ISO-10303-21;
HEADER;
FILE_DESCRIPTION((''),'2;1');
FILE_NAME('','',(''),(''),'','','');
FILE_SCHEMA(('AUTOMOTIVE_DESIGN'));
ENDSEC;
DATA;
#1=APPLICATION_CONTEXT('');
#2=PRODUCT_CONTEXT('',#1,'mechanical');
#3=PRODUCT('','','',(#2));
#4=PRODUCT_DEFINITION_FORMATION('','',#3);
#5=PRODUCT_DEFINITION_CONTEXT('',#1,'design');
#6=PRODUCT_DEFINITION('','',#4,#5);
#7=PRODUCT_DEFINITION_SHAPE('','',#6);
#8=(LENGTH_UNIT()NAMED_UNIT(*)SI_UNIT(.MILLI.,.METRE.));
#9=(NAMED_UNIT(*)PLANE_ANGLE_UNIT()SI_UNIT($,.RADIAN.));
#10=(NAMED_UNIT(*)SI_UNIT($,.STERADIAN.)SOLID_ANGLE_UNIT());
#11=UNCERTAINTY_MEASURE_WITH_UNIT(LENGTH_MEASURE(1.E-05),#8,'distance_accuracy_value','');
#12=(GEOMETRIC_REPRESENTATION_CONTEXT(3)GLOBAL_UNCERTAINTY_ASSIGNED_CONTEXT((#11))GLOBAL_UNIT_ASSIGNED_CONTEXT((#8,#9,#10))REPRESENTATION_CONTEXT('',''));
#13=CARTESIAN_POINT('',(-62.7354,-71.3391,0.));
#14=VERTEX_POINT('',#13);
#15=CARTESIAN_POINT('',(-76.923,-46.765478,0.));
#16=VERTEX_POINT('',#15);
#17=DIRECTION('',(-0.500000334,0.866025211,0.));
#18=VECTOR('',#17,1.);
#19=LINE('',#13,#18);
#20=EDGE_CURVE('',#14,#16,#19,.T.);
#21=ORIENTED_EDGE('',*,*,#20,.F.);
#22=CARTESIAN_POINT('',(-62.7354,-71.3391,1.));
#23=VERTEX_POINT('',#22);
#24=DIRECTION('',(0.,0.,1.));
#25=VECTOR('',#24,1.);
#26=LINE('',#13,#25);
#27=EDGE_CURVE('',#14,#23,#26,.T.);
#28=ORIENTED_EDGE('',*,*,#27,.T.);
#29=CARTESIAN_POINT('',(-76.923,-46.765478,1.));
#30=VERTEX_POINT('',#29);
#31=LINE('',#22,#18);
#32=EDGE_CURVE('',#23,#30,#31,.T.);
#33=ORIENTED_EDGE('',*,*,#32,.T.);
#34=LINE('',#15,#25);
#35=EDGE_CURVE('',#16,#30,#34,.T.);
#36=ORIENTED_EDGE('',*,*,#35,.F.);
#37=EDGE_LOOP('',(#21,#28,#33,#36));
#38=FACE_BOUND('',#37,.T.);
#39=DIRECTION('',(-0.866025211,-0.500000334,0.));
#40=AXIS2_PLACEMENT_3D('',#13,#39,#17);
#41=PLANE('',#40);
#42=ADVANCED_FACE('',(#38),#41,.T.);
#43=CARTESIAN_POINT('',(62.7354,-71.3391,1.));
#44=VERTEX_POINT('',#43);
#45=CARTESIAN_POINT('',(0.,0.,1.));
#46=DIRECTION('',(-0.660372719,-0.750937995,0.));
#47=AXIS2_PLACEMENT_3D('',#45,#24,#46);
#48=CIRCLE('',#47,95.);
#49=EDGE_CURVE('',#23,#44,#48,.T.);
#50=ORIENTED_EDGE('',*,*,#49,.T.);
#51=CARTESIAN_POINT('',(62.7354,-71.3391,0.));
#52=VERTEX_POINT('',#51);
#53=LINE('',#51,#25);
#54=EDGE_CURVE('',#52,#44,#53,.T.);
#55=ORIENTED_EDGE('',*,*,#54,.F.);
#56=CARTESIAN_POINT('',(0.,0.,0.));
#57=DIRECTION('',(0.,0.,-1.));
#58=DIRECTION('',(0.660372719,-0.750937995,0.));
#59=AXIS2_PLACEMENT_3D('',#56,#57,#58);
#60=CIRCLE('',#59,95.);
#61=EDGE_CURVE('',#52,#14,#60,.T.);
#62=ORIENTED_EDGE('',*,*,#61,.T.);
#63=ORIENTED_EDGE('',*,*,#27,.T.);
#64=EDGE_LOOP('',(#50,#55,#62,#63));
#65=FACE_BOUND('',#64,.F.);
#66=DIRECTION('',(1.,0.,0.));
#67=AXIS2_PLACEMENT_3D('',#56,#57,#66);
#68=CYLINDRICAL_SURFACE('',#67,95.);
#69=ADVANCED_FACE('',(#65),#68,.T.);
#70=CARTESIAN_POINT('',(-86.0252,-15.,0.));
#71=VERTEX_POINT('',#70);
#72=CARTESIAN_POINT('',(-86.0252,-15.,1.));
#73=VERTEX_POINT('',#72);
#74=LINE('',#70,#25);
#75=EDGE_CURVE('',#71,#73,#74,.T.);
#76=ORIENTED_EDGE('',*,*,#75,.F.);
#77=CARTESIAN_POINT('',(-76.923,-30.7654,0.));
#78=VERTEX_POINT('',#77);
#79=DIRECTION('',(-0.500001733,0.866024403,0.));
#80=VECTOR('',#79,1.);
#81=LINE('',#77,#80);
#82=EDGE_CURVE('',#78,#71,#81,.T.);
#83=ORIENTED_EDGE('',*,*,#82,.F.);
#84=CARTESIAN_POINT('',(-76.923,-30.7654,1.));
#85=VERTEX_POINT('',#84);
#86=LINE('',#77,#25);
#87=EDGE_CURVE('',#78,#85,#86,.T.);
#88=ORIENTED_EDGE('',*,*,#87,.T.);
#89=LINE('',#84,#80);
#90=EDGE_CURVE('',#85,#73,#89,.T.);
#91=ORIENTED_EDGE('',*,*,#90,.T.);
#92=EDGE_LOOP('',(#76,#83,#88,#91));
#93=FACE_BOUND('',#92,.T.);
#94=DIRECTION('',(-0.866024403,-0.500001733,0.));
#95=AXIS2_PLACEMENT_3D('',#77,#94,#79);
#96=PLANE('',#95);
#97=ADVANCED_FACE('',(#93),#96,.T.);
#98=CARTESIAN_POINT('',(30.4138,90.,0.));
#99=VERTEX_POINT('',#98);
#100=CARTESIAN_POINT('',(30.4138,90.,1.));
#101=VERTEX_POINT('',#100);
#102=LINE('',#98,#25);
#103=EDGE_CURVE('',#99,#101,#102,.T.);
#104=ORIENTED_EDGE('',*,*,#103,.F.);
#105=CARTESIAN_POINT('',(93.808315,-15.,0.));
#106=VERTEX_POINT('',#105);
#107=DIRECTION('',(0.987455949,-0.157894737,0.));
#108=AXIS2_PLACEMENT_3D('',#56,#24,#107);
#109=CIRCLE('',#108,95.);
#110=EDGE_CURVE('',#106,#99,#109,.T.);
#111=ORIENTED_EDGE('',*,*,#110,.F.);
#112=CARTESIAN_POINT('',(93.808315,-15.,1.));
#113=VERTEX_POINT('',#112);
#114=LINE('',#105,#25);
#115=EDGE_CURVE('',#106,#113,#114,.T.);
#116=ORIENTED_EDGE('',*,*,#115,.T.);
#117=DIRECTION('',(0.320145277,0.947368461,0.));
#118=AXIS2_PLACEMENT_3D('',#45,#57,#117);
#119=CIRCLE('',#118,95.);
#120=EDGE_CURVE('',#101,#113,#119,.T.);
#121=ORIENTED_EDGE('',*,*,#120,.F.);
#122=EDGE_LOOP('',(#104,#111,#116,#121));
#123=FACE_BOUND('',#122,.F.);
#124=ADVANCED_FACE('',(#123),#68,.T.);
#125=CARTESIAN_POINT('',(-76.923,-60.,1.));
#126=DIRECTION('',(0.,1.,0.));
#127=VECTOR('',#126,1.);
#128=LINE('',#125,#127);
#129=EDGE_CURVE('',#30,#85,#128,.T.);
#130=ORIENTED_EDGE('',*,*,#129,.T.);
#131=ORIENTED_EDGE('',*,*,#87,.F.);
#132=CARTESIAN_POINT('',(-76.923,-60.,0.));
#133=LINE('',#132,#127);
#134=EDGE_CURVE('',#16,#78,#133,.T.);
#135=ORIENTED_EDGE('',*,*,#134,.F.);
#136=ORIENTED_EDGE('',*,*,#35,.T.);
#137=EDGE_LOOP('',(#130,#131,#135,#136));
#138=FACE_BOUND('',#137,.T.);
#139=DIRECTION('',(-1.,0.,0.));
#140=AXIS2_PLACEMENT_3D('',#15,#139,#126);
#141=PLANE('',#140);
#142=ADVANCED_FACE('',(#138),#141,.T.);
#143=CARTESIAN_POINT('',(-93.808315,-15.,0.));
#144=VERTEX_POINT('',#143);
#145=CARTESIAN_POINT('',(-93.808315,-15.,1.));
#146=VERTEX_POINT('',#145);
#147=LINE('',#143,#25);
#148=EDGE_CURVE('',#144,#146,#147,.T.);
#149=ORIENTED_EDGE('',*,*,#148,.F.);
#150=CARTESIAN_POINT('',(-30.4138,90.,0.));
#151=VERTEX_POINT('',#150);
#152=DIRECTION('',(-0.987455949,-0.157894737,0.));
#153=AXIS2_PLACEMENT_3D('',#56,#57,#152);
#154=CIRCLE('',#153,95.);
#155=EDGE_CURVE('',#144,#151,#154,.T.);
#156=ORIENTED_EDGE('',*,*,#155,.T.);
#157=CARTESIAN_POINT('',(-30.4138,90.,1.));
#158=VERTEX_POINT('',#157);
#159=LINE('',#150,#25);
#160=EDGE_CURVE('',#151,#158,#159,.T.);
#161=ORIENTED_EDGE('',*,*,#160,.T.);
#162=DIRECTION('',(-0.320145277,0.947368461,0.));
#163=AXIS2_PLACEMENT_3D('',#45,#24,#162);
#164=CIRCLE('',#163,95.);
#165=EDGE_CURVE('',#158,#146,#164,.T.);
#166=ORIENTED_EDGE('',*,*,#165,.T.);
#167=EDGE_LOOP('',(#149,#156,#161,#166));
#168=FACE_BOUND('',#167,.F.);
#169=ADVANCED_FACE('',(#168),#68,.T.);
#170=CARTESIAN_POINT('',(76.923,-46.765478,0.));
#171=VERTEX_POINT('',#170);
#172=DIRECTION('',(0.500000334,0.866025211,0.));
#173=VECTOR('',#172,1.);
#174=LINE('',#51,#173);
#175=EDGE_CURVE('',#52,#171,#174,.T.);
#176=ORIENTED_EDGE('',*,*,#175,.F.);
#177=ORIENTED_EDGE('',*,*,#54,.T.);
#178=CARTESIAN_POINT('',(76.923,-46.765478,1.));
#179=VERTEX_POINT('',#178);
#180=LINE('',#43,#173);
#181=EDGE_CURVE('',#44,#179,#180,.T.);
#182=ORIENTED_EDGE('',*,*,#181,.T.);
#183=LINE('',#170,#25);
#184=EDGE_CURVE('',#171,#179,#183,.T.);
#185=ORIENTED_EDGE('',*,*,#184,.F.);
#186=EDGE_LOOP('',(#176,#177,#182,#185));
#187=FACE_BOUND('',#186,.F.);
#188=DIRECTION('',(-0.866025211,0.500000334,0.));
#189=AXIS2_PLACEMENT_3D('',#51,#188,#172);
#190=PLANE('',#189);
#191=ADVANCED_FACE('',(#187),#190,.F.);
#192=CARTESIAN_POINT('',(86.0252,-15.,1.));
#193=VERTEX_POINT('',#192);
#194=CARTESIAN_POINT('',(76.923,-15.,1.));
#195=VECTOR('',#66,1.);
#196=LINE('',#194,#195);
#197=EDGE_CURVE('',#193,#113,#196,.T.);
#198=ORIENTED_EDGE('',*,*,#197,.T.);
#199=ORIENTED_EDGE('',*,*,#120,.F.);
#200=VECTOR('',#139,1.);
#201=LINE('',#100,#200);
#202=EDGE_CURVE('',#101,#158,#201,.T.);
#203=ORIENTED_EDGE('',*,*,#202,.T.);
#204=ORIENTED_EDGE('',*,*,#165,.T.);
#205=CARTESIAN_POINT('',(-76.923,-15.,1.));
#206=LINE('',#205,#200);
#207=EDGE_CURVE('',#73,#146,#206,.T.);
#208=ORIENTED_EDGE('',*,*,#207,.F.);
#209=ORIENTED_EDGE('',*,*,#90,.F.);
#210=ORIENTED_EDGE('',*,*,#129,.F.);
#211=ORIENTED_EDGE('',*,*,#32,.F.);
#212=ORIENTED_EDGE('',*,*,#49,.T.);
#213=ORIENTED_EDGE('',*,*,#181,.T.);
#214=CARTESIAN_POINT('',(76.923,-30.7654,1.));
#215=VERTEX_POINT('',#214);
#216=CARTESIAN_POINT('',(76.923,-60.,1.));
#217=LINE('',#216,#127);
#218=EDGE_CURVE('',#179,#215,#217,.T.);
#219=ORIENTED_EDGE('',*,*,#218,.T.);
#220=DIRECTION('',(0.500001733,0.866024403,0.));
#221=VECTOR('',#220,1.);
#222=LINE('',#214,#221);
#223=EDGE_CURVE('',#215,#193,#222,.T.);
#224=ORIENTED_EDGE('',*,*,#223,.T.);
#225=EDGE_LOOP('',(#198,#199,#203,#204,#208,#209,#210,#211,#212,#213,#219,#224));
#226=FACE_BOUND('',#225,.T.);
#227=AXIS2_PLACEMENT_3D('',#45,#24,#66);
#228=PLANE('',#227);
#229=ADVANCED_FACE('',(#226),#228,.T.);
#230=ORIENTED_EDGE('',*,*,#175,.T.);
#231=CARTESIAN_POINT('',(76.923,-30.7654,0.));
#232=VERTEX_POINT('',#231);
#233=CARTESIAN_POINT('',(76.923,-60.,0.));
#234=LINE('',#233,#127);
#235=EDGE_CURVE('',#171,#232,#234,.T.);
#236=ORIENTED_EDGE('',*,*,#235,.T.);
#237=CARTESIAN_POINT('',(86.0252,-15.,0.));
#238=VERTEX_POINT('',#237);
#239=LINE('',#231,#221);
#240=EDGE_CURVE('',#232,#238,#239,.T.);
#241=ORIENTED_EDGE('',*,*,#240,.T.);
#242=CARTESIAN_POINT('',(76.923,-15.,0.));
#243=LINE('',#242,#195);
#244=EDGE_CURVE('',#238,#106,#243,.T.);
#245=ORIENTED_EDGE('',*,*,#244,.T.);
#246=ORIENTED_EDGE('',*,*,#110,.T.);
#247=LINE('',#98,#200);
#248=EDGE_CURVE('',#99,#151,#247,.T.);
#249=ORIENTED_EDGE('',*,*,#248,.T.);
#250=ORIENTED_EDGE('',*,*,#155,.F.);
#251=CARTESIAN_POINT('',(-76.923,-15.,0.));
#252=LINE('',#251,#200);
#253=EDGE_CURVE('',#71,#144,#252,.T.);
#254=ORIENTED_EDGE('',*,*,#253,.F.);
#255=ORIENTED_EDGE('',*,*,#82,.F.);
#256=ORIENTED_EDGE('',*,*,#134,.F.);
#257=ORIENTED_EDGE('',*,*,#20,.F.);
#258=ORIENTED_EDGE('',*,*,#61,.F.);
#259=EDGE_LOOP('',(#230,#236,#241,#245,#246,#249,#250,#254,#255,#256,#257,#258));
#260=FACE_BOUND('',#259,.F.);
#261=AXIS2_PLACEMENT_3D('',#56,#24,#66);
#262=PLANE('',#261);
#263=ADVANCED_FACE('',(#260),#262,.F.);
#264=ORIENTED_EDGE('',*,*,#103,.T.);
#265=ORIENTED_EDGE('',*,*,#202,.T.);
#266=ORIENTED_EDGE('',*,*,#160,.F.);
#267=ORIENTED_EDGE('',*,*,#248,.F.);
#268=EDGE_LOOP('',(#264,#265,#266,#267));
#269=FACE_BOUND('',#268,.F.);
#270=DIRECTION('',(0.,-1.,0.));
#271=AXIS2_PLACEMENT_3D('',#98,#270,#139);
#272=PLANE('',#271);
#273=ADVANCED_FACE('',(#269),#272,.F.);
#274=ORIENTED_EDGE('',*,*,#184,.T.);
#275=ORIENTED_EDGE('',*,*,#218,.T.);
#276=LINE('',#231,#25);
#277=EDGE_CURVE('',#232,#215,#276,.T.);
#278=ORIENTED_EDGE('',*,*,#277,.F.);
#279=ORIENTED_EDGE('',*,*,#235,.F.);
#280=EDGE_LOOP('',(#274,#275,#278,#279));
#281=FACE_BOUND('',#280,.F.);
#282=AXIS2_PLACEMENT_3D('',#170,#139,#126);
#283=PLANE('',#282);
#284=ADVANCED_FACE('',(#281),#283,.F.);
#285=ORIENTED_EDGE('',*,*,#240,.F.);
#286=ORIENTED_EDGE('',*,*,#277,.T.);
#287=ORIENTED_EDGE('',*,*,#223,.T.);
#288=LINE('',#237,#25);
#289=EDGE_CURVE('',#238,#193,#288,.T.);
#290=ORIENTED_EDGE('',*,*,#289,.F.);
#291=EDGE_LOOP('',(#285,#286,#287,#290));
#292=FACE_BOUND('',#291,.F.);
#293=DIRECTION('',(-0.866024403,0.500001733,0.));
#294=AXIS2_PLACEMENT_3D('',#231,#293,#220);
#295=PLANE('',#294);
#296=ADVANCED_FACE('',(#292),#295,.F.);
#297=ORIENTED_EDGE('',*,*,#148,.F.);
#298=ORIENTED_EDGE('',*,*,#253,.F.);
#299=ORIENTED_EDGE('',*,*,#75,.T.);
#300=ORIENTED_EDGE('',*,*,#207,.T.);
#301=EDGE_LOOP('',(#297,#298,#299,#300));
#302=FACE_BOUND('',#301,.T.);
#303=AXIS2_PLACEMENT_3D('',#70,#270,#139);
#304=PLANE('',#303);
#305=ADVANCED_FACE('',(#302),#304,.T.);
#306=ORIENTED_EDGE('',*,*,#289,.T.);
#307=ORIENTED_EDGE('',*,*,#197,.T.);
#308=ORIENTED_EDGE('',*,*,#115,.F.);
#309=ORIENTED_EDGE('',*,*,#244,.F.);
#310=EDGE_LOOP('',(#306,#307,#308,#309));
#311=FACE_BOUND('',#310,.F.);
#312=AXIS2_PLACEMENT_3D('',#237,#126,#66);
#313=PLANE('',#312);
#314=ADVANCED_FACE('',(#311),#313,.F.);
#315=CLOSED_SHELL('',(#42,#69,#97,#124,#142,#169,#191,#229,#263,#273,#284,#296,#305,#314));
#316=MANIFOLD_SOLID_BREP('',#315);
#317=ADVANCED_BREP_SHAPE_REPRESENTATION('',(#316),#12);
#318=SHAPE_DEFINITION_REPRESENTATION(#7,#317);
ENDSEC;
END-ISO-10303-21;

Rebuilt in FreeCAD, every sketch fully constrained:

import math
import FreeCAD as App
import Part
import Sketcher

V = App.Vector
Q = App.Units.Quantity

doc = App.newDocument("Part")
params = doc.addObject("Spreadsheet::Sheet", "Params")
for row, (alias, value) in enumerate([
    ("sketch1_radius", "95 mm"),
    ("sketch1_height", "16 mm"),
    ("pad1_length", "1 mm"),
], start=1):
    params.set(f"A{row}", alias)
    params.set(f"B{row}", "=" + value)
    params.setAlias(f"B{row}", alias)

body = doc.addObject("PartDesign::Body", "Body")

# Sketch on XY plane
sketch1 = body.newObject("Sketcher::SketchObject", "Sketch")
sketch1.AttachmentSupport = (doc.getObject("XY_Plane"), [""])
sketch1.MapMode = "FlatFace"
sketch1.addGeometry([
    Part.ArcOfCircle(Part.Circle(V(0, 0, 0), V(0, 0, 1), 95), math.radians(-9), math.radians(71)),  # 0
    Part.LineSegment(V(30, 90, 0), V(-30, 90, 0)),  # 1
    Part.ArcOfCircle(Part.Circle(V(0, 0, 0), V(0, 0, 1), 95), math.radians(109), math.radians(189)),  # 2
    Part.LineSegment(V(-94, -15, 0), V(-86, -15, 0)),  # 3
    Part.LineSegment(V(-86, -15, 0), V(-77, -31, 0)),  # 4
    Part.LineSegment(V(-77, -31, 0), V(-77, -47, 0)),  # 5
    Part.LineSegment(V(-77, -47, 0), V(-63, -71, 0)),  # 6
    Part.ArcOfCircle(Part.Circle(V(0, 0, 0), V(0, 0, 1), 95), math.radians(-131), math.radians(-49)),  # 7
    Part.LineSegment(V(63, -71, 0), V(77, -47, 0)),  # 8
    Part.LineSegment(V(77, -47, 0), V(77, -31, 0)),  # 9
    Part.LineSegment(V(77, -31, 0), V(86, -15, 0)),  # 10
    Part.LineSegment(V(86, -15, 0), V(94, -15, 0)),  # 11
], False)
sketch1.addConstraint([
    Sketcher.Constraint("Coincident", 0, 2, 1, 1),
    Sketcher.Constraint("Coincident", 1, 2, 2, 1),
    Sketcher.Constraint("Coincident", 2, 2, 3, 1),
    Sketcher.Constraint("Coincident", 3, 2, 4, 1),
    Sketcher.Constraint("Coincident", 4, 2, 5, 1),
    Sketcher.Constraint("Coincident", 5, 2, 6, 1),
    Sketcher.Constraint("Coincident", 6, 2, 7, 1),
    Sketcher.Constraint("Coincident", 7, 2, 8, 1),
    Sketcher.Constraint("Coincident", 8, 2, 9, 1),
    Sketcher.Constraint("Coincident", 9, 2, 10, 1),
    Sketcher.Constraint("Coincident", 10, 2, 11, 1),
    Sketcher.Constraint("Coincident", 11, 2, 0, 1),
    Sketcher.Constraint("Horizontal", 1),
    Sketcher.Constraint("Horizontal", 3),
    Sketcher.Constraint("Vertical", 5),
    Sketcher.Constraint("Vertical", 9),
    Sketcher.Constraint("Horizontal", 11),
    Sketcher.Constraint("Coincident", 0, 3, -1, 1),
    Sketcher.Constraint("Coincident", 2, 3, -1, 1),
    Sketcher.Constraint("Coincident", 7, 3, -1, 1),
    Sketcher.Constraint("Equal", 0, 2),
    Sketcher.Constraint("Equal", 2, 7),
    Sketcher.Constraint("Symmetric", 5, 2, 8, 2, -2),
    Sketcher.Constraint("Symmetric", 3, 2, 10, 2, -2),
    Sketcher.Constraint("Parallel", 4, 6),
    Sketcher.Constraint("Parallel", 8, 10),
    Sketcher.Constraint("Horizontal", 6, 2, 7, 2),
    Sketcher.Constraint("Radius", 0, 95.0),
    Sketcher.Constraint("DistanceY", -1, 1, 0, 2, 90.0),
    Sketcher.Constraint("DistanceY", 5, 2, 5, 1, 16.0),
    Sketcher.Constraint("Angle", 4, Q("-60 deg")),
    Sketcher.Constraint("DistanceY", 2, 2, -1, 1, 15.0),
    Sketcher.Constraint("DistanceX", 3, 2, -1, 1, 86.0252),
    Sketcher.Constraint("DistanceY", 4, 2, -1, 1, 30.7654),
])
sketch1.setExpression("Constraints[27]", "Params.sketch1_radius")
sketch1.setExpression("Constraints[29]", "Params.sketch1_height")
pad1 = body.newObject("PartDesign::Pad", "Pad")
pad1.Profile = sketch1
pad1.setExpression("Length", "Params.pad1_length")

doc.recompute()
